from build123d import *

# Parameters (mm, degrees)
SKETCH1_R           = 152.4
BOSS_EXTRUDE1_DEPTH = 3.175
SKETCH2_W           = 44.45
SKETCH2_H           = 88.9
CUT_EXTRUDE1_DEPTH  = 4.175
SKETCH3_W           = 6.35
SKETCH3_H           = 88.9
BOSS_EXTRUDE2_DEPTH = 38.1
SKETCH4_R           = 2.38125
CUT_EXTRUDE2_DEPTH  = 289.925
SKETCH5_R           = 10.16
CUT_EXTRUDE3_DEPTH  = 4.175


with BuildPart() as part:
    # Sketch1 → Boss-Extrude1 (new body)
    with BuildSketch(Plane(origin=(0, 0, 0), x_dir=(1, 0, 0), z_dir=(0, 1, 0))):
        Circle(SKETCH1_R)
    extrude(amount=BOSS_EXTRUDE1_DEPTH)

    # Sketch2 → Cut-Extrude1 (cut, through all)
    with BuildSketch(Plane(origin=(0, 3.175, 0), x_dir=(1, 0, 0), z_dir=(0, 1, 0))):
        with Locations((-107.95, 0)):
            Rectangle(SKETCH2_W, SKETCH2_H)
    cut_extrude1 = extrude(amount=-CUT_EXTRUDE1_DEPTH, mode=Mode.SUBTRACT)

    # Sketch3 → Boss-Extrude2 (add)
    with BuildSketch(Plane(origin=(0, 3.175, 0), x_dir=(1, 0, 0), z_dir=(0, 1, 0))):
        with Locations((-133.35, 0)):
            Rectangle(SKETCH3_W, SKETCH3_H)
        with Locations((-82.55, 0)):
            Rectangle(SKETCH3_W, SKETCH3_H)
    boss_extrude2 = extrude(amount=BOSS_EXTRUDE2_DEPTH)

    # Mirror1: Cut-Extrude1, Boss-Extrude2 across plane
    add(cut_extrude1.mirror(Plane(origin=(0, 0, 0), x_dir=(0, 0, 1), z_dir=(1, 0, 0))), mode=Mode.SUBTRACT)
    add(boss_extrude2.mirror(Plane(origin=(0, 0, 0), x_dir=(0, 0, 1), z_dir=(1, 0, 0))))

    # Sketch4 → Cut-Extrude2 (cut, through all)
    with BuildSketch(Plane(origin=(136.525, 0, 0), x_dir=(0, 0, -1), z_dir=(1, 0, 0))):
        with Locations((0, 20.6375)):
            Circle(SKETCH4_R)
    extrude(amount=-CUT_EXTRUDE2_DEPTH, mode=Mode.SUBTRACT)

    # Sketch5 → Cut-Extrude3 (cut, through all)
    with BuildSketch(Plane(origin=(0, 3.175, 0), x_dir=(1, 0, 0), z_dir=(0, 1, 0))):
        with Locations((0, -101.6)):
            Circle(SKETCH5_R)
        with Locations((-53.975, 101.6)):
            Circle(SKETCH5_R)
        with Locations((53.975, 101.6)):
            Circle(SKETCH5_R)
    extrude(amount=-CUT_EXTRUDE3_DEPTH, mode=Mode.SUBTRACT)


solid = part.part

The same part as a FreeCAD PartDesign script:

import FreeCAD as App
import Part
import Sketcher
from FreeCAD import Vector
Q = App.Units.Quantity


def add_polygon(sketch, points):
    """Adds a closed chain of lines whose ends are joined by coincident constraints."""
    first, n = sketch.GeometryCount, len(points)
    for a, b in zip(points, points[1:] + points[:1]):
        sketch.addGeometry(Part.LineSegment(App.Vector(*a, 0), App.Vector(*b, 0)), False)
    for i in range(n):
        sketch.addConstraint(Sketcher.Constraint("Coincident", first + i, 2, first + (i + 1) % n, 1))

doc = App.newDocument("Part")
body = doc.addObject("PartDesign::Body", "Body")

sketch1 = body.newObject("Sketcher::SketchObject", "Sketch")
sketch1.AttachmentSupport = (doc.getObject("XZ_Plane"), [""])
sketch1.MapMode = "FlatFace"
sketch1.addGeometry(Part.Circle(Vector(0, 0, 0), Vector(0, 0, 1), 152), False)
sketch1.addConstraint([
    Sketcher.Constraint("Coincident", 0, 3, -1, 1),
    Sketcher.Constraint("Diameter", 0, Q("12 in")),
])
pad1 = body.newObject("PartDesign::Pad", "Pad")
pad1.Profile = sketch1
pad1.Length = Q("0.125 in")
pad1.Reversed = True

sketch2 = body.newObject("Sketcher::SketchObject", "Sketch001")
sketch2.AttachmentSupport = (doc.getObject("XZ_Plane"), [""])
sketch2.MapMode = "FlatFace"
sketch2.AttachmentOffset = App.Placement(Vector(0, 0, -0.125 * 25.4), App.Rotation())
add_polygon(sketch2, [(-130, -44), (-130, 44), (-86, 44), (-86, -44)])
sketch2.addConstraint([
    Sketcher.Constraint("Vertical", 0),
    Sketcher.Constraint("Horizontal", 1),
    Sketcher.Constraint("Vertical", 2),
    Sketcher.Constraint("Horizontal", 3),
    Sketcher.Constraint("DistanceY", 0, 1, 0, 2, Q("3.5 in")),
    Sketcher.Constraint("DistanceX", 1, 1, 1, 2, Q("1.75 in")),
    Sketcher.Constraint("DistanceY", -1, 1, 0, 2, Q("1.75 in")),
    Sketcher.Constraint("DistanceX", 0, 2, -1, 1, Q("5.125 in")),
])
pocket1 = body.newObject("PartDesign::Pocket", "Pocket")
pocket1.Profile = sketch2
pocket1.Type = "ThroughAll"
pocket1.Reversed = True

sketch3 = body.newObject("Sketcher::SketchObject", "Sketch002")
sketch3.AttachmentSupport = (doc.getObject("XZ_Plane"), [""])
sketch3.MapMode = "FlatFace"
sketch3.AttachmentOffset = App.Placement(Vector(0, 0, -0.125 * 25.4), App.Rotation())
add_polygon(sketch3, [(-137, -44), (-137, 44), (-130, 44), (-130, -44)])
add_polygon(sketch3, [(-86, -44), (-86, 44), (-79, 44), (-79, -44)])
sketch3.addConstraint([
    Sketcher.Constraint("Vertical", 0),
    Sketcher.Constraint("Horizontal", 1),
    Sketcher.Constraint("Vertical", 2),
    Sketcher.Constraint("Horizontal", 3),
    Sketcher.Constraint("Vertical", 4),
    Sketcher.Constraint("Horizontal", 5),
    Sketcher.Constraint("Vertical", 6),
    Sketcher.Constraint("Horizontal", 7),
    Sketcher.Constraint("Horizontal", 1, 2, 4, 2),
    Sketcher.Constraint("Horizontal", 3, 2, 6, 2),
    Sketcher.Constraint("Equal", 3, 5),
    Sketcher.Constraint("DistanceY", 0, 1, 0, 2, Q("3.5 in")),
    Sketcher.Constraint("DistanceX", 0, 2, 4, 2, Q("2 in")),
    Sketcher.Constraint("DistanceX", 1, 1, 1, 2, Q("0.25 in")),
    Sketcher.Constraint("DistanceY", -1, 1, 0, 2, Q("1.75 in")),
    Sketcher.Constraint("DistanceX", 0, 2, -1, 1, Q("5.375 in")),
])
pad2 = body.newObject("PartDesign::Pad", "Pad001")
pad2.Profile = sketch3
pad2.Length = Q("1.5 in")
pad2.Reversed = True
doc.recompute()

mirrored = body.newObject("PartDesign::Mirrored", "Mirrored")
mirrored.Originals = [pocket1, pad2]
mirrored.MirrorPlane = (doc.getObject("YZ_Plane"), [""])
body.Tip = mirrored

sketch4 = body.newObject("Sketcher::SketchObject", "Sketch003")
sketch4.AttachmentSupport = (doc.getObject("YZ_Plane"), [""])
sketch4.MapMode = "FlatFace"
sketch4.AttachmentOffset = App.Placement(Vector(0, 0, 5.375 * 25.4), App.Rotation())
sketch4.addGeometry(Part.Circle(Vector(20.6, 0, 0), Vector(0, 0, 1), 2.4), False)
sketch4.addConstraint([
    Sketcher.Constraint("PointOnObject", 0, 3, -1),
    Sketcher.Constraint("Diameter", 0, Q("0.1875 in")),
    Sketcher.Constraint("DistanceX", -1, 1, 0, 3, Q("0.8125 in")),
])
pocket2 = body.newObject("PartDesign::Pocket", "Pocket001")
pocket2.Profile = sketch4
pocket2.Type = "ThroughAll"

sketch5 = body.newObject("Sketcher::SketchObject", "Sketch004")
sketch5.AttachmentSupport = (doc.getObject("XZ_Plane"), [""])
sketch5.MapMode = "FlatFace"
sketch5.AttachmentOffset = App.Placement(Vector(0, 0, -0.125 * 25.4), App.Rotation())
sketch5.addGeometry([
    Part.Circle(Vector(0, 102, 0), Vector(0, 0, 1), 10),
    Part.Circle(Vector(-54, -102, 0), Vector(0, 0, 1), 10),
    Part.Circle(Vector(54, -102, 0), Vector(0, 0, 1), 10),
], False)
sketch5.addConstraint([
    Sketcher.Constraint("Equal", 0, 1),
    Sketcher.Constraint("Equal", 1, 2),
    Sketcher.Constraint("Symmetric", 1, 3, 2, 3, -2),
    Sketcher.Constraint("PointOnObject", 0, 3, -2),
    Sketcher.Constraint("Diameter", 0, Q("0.8 in")),
    Sketcher.Constraint("DistanceY", -1, 1, 0, 3, Q("4 in")),
    Sketcher.Constraint("DistanceY", 1, 3, -1, 1, Q("4 in")),
    Sketcher.Constraint("DistanceX", 1, 3, 2, 3, Q("4.25 in")),
])
pocket3 = body.newObject("PartDesign::Pocket", "Pocket002")
pocket3.Profile = sketch5
pocket3.Type = "ThroughAll"
pocket3.Reversed = True

doc.recompute()
